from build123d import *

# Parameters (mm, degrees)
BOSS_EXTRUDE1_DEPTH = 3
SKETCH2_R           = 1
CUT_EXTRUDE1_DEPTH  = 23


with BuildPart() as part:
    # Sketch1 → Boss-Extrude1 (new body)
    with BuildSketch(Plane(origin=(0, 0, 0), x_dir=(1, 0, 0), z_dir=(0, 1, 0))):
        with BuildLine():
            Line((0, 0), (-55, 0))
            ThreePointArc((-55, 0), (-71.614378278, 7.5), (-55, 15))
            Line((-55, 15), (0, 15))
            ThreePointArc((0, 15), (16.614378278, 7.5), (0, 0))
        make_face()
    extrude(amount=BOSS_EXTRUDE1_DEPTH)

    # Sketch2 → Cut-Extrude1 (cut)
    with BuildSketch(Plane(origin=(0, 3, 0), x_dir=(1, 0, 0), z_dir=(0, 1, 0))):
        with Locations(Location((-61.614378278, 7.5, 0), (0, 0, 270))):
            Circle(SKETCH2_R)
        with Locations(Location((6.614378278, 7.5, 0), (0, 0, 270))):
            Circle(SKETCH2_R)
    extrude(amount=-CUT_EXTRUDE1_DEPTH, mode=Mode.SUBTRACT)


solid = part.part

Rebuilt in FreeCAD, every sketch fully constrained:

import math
import FreeCAD as App
import Part
import Sketcher
from FreeCAD import Vector

doc = App.newDocument("Part")
body = doc.addObject("PartDesign::Body", "Body")

sketch1 = body.newObject("Sketcher::SketchObject", "Sketch")
sketch1.AttachmentSupport = (doc.getObject("XZ_Plane"), [""])
sketch1.MapMode = "FlatFace"
sketch1.addGeometry([
    Part.LineSegment(Vector(-55, 0, 0), Vector(0, 0, 0)),
    Part.ArcOfCircle(Part.Circle(Vector(7, -8, 0), Vector(0, 0, 1), 10), math.radians(-131), math.radians(131)),
    Part.LineSegment(Vector(0, -15, 0), Vector(-55, -15, 0)),
    Part.ArcOfCircle(Part.Circle(Vector(-62, -8, 0), Vector(0, 0, 1), 10), math.radians(49), math.radians(311)),
], False)
sketch1.addConstraint([
    Sketcher.Constraint("Coincident", 0, 2, 1, 2),
    Sketcher.Constraint("Coincident", 1, 1, 2, 1),
    Sketcher.Constraint("Coincident", 2, 2, 3, 2),
    Sketcher.Constraint("Coincident", 3, 1, 0, 1),
    Sketcher.Constraint("Horizontal", 0),
    Sketcher.Constraint("Horizontal", 2),
    Sketcher.Constraint("Coincident", 0, 2, -1, 1),
    Sketcher.Constraint("Equal", 1, 3),
    Sketcher.Constraint("PointOnObject", 1, 1, -2),
    Sketcher.Constraint("Horizontal", 1, 3, 3, 3),
    Sketcher.Constraint("Radius", 1, 10.0),
    Sketcher.Constraint("DistanceX", 0, 1, 0, 2, 55.0),
    Sketcher.Constraint("DistanceY", 1, 1, -1, 1, 15.0),
])
pad1 = body.newObject("PartDesign::Pad", "Pad")
pad1.Profile = sketch1
pad1.Length = 3
pad1.Reversed = True

sketch2 = body.newObject("Sketcher::SketchObject", "Sketch001")
sketch2.AttachmentSupport = (doc.getObject("XZ_Plane"), [""])
sketch2.MapMode = "FlatFace"
sketch2.AttachmentOffset = App.Placement(Vector(0, 0, -3), App.Rotation())
sketch2.addGeometry([
    Part.Circle(Vector(-61.6, -7.5, 0), Vector(0, 0, 1), 1),
    Part.Circle(Vector(6.6, -7.5, 0), Vector(0, 0, 1), 1),
], False)
sketch2.addConstraint([
    Sketcher.Constraint("Equal", 0, 1),
    Sketcher.Constraint("Horizontal", 0, 3, 1, 3),
    Sketcher.Constraint("Diameter", 0, 2.0),
    Sketcher.Constraint("DistanceY", 0, 3, -1, 1, 7.5),
    Sketcher.Constraint("DistanceX", 0, 3, -1, 1, 61.614378),
    Sketcher.Constraint("DistanceX", -1, 1, 1, 3, 6.614378),
])
pocket1 = body.newObject("PartDesign::Pocket", "Pocket")
pocket1.Profile = sketch2
pocket1.Length = 23
pocket1.Reversed = True

doc.recompute()
